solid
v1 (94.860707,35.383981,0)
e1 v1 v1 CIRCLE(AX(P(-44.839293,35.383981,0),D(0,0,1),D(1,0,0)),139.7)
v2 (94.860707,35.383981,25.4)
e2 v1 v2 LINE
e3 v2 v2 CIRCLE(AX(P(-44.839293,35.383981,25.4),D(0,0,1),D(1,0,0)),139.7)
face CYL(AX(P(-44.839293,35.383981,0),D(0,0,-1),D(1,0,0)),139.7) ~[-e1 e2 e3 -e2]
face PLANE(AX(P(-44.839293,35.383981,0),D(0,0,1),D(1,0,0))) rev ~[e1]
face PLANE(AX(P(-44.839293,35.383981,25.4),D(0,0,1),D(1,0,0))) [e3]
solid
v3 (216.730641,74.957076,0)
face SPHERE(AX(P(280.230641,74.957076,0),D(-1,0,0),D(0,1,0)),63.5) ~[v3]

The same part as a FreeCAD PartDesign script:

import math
import FreeCAD as App
import Part
import Sketcher
from FreeCAD import Vector
Q = App.Units.Quantity

doc = App.newDocument("Part")
body = doc.addObject("PartDesign::Body", "Body")

sketch1 = body.newObject("Sketcher::SketchObject", "Sketch")
sketch1.AttachmentSupport = (doc.getObject("XY_Plane"), [""])
sketch1.MapMode = "FlatFace"
sketch1.addGeometry(Part.Circle(Vector(-45, 35, 0), Vector(0, 0, 1), 140), False)
sketch1.addConstraint([
    Sketcher.Constraint("Diameter", 0, Q("11 in")),
    Sketcher.Constraint("DistanceY", -1, 1, 0, 3, 35.383981),
    Sketcher.Constraint("DistanceX", 0, 3, -1, 1, 44.839293),
])
pad1 = body.newObject("PartDesign::Pad", "Pad")
pad1.Profile = sketch1
pad1.Length = Q("1 in")
body2 = doc.addObject("PartDesign::Body", "Body001")

sketch2 = body2.newObject("Sketcher::SketchObject", "Sketch001")
sketch2.AttachmentSupport = (doc.getObject("XY_Plane001"), [""])
sketch2.MapMode = "FlatFace"
sketch2.addGeometry([
    Part.LineSegment(Vector(217, 75, 0), Vector(344, 75, 0)),
    Part.ArcOfCircle(Part.Circle(Vector(280, 75, 0), Vector(0, 0, 1), 64), math.radians(0), math.radians(180)),
], False)
sketch2.addGeometry(Part.LineSegment(Vector(217, 75, 0), Vector(344, 75, 0)), True)
sketch2.addConstraint([
    Sketcher.Constraint("Coincident", 0, 1, 1, 2),
    Sketcher.Constraint("Coincident", 1, 1, 0, 2),
    Sketcher.Constraint("Horizontal", 0),
    Sketcher.Constraint("Horizontal", 2),
    Sketcher.Constraint("Coincident", 2, 1, 0, 1),
    Sketcher.Constraint("Horizontal", 1, 3, 0, 1),
    Sketcher.Constraint("Equal", 0, 2),
    Sketcher.Constraint("Radius", 1, Q("2.5 in")),
    Sketcher.Constraint("DistanceX", -1, 1, 1, 3, 280.230641),
    Sketcher.Constraint("DistanceY", -1, 1, 1, 3, 74.957076),
])
revolution = body2.newObject("PartDesign::Revolution", "Revolution")
revolution.Profile = sketch2
revolution.ReferenceAxis = (sketch2, ["Axis0"])
revolution.Angle = 360

doc.recompute()
